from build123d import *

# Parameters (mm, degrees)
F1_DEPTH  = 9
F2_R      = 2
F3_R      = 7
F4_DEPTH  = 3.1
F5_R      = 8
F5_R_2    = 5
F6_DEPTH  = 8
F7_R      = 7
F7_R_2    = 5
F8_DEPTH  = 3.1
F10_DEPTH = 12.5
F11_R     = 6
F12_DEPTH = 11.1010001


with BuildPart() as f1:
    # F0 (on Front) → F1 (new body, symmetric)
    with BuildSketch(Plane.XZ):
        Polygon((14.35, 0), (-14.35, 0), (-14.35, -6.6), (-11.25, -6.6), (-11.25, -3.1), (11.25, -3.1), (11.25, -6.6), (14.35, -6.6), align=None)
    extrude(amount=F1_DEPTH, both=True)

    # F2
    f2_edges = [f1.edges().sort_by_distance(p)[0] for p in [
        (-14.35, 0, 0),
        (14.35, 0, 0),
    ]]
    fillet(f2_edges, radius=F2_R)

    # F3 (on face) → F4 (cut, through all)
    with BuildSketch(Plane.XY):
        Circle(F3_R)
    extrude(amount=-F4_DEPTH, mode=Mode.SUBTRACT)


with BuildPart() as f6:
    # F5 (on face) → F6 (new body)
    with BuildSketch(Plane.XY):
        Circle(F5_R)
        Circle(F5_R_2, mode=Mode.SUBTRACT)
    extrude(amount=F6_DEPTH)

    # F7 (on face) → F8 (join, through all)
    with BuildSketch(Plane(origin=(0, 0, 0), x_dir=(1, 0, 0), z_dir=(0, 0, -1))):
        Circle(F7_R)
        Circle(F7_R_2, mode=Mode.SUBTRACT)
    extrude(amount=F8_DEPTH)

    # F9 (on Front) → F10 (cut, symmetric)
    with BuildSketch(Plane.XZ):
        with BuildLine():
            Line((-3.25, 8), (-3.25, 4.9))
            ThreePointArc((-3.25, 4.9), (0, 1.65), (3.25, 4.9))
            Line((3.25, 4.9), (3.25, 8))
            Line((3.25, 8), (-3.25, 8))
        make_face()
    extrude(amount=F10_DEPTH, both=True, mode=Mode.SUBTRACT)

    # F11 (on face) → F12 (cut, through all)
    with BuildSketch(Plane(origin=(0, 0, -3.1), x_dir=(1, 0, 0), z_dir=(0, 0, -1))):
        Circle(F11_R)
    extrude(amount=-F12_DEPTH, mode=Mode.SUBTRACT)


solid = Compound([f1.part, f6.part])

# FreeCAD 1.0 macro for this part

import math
import FreeCAD as App
import Part
import Sketcher
from FreeCAD import Vector
Q = App.Units.Quantity


def edges_at(feature, points):
    """Names of the edges that pass closest to the given points."""
    edges = feature.Shape.Edges
    near = lambda p: min(range(len(edges)), key=lambda i: edges[i].distToShape(Part.Vertex(*p))[0])
    return sorted({f"Edge{near(p) + 1}" for p in points})

doc = App.newDocument("Part")
body = doc.addObject("PartDesign::Body", "Body")

# Sketch on XZ plane
sketch1 = body.newObject("Sketcher::SketchObject", "Sketch")
sketch1.AttachmentSupport = (doc.getObject("XZ_Plane"), [""])
sketch1.MapMode = "FlatFace"
sketch1.addGeometry(Part.LineSegment(Vector(14.35, 0, 0), Vector(-14.35, 0, 0)), False)
sketch1.addGeometry(Part.LineSegment(Vector(-14.35, 0, 0), Vector(-14.35, -6.6, 0)), False)
sketch1.addGeometry(Part.LineSegment(Vector(-14.35, -6.6, 0), Vector(-11.25, -6.6, 0)), False)
sketch1.addGeometry(Part.LineSegment(Vector(-11.25, -6.6, 0), Vector(-11.25, -3.1, 0)), False)
sketch1.addGeometry(Part.LineSegment(Vector(-11.25, -3.1, 0), Vector(11.25, -3.1, 0)), False)
sketch1.addGeometry(Part.LineSegment(Vector(11.25, -3.1, 0), Vector(11.25, -6.6, 0)), False)
sketch1.addGeometry(Part.LineSegment(Vector(11.25, -6.6, 0), Vector(14.35, -6.6, 0)), False)
sketch1.addGeometry(Part.LineSegment(Vector(14.35, -6.6, 0), Vector(14.35, 0, 0)), False)
sketch1.addConstraint(Sketcher.Constraint("Coincident", 0, 2, 1, 1))
sketch1.addConstraint(Sketcher.Constraint("Coincident", 1, 2, 2, 1))
sketch1.addConstraint(Sketcher.Constraint("Coincident", 2, 2, 3, 1))
sketch1.addConstraint(Sketcher.Constraint("Coincident", 3, 2, 4, 1))
sketch1.addConstraint(Sketcher.Constraint("Coincident", 4, 2, 5, 1))
sketch1.addConstraint(Sketcher.Constraint("Coincident", 5, 2, 6, 1))
sketch1.addConstraint(Sketcher.Constraint("Coincident", 6, 2, 7, 1))
sketch1.addConstraint(Sketcher.Constraint("Coincident", 7, 2, 0, 1))
sketch1.addConstraint(Sketcher.Constraint("Horizontal", 0))
sketch1.addConstraint(Sketcher.Constraint("Vertical", 1))
sketch1.addConstraint(Sketcher.Constraint("Horizontal", 2))
sketch1.addConstraint(Sketcher.Constraint("Vertical", 3))
sketch1.addConstraint(Sketcher.Constraint("Horizontal", 4))
sketch1.addConstraint(Sketcher.Constraint("Vertical", 5))
sketch1.addConstraint(Sketcher.Constraint("Horizontal", 6))
sketch1.addConstraint(Sketcher.Constraint("Vertical", 7))
sketch1.addConstraint(Sketcher.Constraint("Symmetric", 0, 2, 7, 2, -1, 1))
sketch1.addConstraint(Sketcher.Constraint("Symmetric", 2, 2, 5, 2, -2))
sketch1.addConstraint(Sketcher.Constraint("DistanceX", 0, 2, 0, 1, Q("28.7 mm")))
sketch1.addConstraint(Sketcher.Constraint("DistanceX", 2, 1, 2, 2, Q("3.1 mm")))
sketch1.addConstraint(Sketcher.Constraint("DistanceY", 1, 2, 1, 1, Q("6.6 mm")))
sketch1.addConstraint(Sketcher.Constraint("DistanceY", 3, 1, 3, 2, Q("3.5 mm")))
pad1 = body.newObject("PartDesign::Pad", "Pad")
pad1.Profile = sketch1
pad1.Length = 18
pad1.Midplane = True
doc.recompute()

fillet = body.newObject("PartDesign::Fillet", "Fillet")
fillet.Base = (pad1, edges_at(pad1, [(-14.35, 0, 0), (14.35, 0, 0)]))
fillet.Radius = 2

# Sketch on XY plane
sketch2 = body.newObject("Sketcher::SketchObject", "Sketch001")
sketch2.AttachmentSupport = (doc.getObject("XY_Plane"), [""])
sketch2.MapMode = "FlatFace"
sketch2.addGeometry(Part.Circle(Vector(0, 0, 0), Vector(0, 0, 1), 7), False)
sketch2.addConstraint(Sketcher.Constraint("Coincident", 0, 3, -1, 1))
sketch2.addConstraint(Sketcher.Constraint("Diameter", 0, Q("14 mm")))
pocket1 = body.newObject("PartDesign::Pocket", "Pocket")
pocket1.Profile = sketch2
pocket1.Type = "ThroughAll"
body2 = doc.addObject("PartDesign::Body", "Body001")

# Sketch on XY plane
sketch3 = body2.newObject("Sketcher::SketchObject", "Sketch002")
sketch3.AttachmentSupport = (doc.getObject("XY_Plane001"), [""])
sketch3.MapMode = "FlatFace"
sketch3.addGeometry(Part.Circle(Vector(0, 0, 0), Vector(0, 0, 1), 8), False)
sketch3.addGeometry(Part.Circle(Vector(0, 0, 0), Vector(0, 0, 1), 5), False)
sketch3.addConstraint(Sketcher.Constraint("Coincident", 0, 3, -1, 1))
sketch3.addConstraint(Sketcher.Constraint("Coincident", 1, 3, -1, 1))
sketch3.addConstraint(Sketcher.Constraint("Diameter", 0, Q("16 mm")))
sketch3.addConstraint(Sketcher.Constraint("Diameter", 1, Q("10 mm")))
pad2 = body2.newObject("PartDesign::Pad", "Pad001")
pad2.Profile = sketch3
pad2.Length = 8

# Sketch on XY plane
sketch4 = body2.newObject("Sketcher::SketchObject", "Sketch003")
sketch4.AttachmentSupport = (doc.getObject("XY_Plane001"), [""])
sketch4.MapMode = "FlatFace"
sketch4.addGeometry(Part.Circle(Vector(0, 0, 0), Vector(0, 0, 1), 7), False)
sketch4.addGeometry(Part.Circle(Vector(0, 0, 0), Vector(0, 0, 1), 5), False)
sketch4.addConstraint(Sketcher.Constraint("Coincident", 0, 3, -1, 1))
sketch4.addConstraint(Sketcher.Constraint("Coincident", 1, 3, -1, 1))
sketch4.addConstraint(Sketcher.Constraint("Diameter", 0, Q("14 mm")))
sketch4.addConstraint(Sketcher.Constraint("Diameter", 1, Q("10 mm")))
pad3 = body2.newObject("PartDesign::Pad", "Pad002")
pad3.Profile = sketch4
pad3.Length = 3.1
pad3.Reversed = True

# Sketch on XZ plane
sketch5 = body2.newObject("Sketcher::SketchObject", "Sketch004")
sketch5.AttachmentSupport = (doc.getObject("XZ_Plane001"), [""])
sketch5.MapMode = "FlatFace"
sketch5.addGeometry(Part.LineSegment(Vector(-3.25, 8, 0), Vector(-3.25, 4.9, 0)), False)
sketch5.addGeometry(Part.ArcOfCircle(Part.Circle(Vector(0, 4.9, 0), Vector(0, 0, 1), 3.25), math.radians(180), math.radians(360)), False)
sketch5.addGeometry(Part.LineSegment(Vector(3.25, 4.9, 0), Vector(3.25, 8, 0)), False)
sketch5.addGeometry(Part.LineSegment(Vector(3.25, 8, 0), Vector(-3.25, 8, 0)), False)
sketch5.addConstraint(Sketcher.Constraint("Tangent", 0, 2, 1, 1))
sketch5.addConstraint(Sketcher.Constraint("Tangent", 1, 2, 2, 1))
sketch5.addConstraint(Sketcher.Constraint("Coincident", 2, 2, 3, 1))
sketch5.addConstraint(Sketcher.Constraint("Coincident", 3, 2, 0, 1))
sketch5.addConstraint(Sketcher.Constraint("Vertical", 0))
sketch5.addConstraint(Sketcher.Constraint("Vertical", 2))
sketch5.addConstraint(Sketcher.Constraint("Horizontal", 3))
sketch5.addConstraint(Sketcher.Constraint("PointOnObject", 1, 3, -2))
sketch5.addConstraint(Sketcher.Constraint("Radius", 1, Q("3.25 mm")))
sketch5.addConstraint(Sketcher.Constraint("DistanceY", 0, 2, 0, 1, Q("3.1 mm")))
sketch5.addConstraint(Sketcher.Constraint("DistanceY", -1, 1, 2, 2, Q("8 mm")))
pocket2 = body2.newObject("PartDesign::Pocket", "Pocket001")
pocket2.Profile = sketch5
pocket2.Length = 25
pocket2.Midplane = True

# Sketch on XY plane
sketch6 = body2.newObject("Sketcher::SketchObject", "Sketch005")
sketch6.AttachmentSupport = (doc.getObject("XY_Plane001"), [""])
sketch6.MapMode = "FlatFace"
sketch6.AttachmentOffset = App.Placement(Vector(0, 0, -3.1), App.Rotation())
sketch6.addGeometry(Part.Circle(Vector(0, 0, 0), Vector(0, 0, 1), 6), False)
sketch6.addConstraint(Sketcher.Constraint("Coincident", 0, 3, -1, 1))
sketch6.addConstraint(Sketcher.Constraint("Diameter", 0, Q("12 mm")))
pocket3 = body2.newObject("PartDesign::Pocket", "Pocket002")
pocket3.Profile = sketch6
pocket3.Type = "ThroughAll"
pocket3.Reversed = True

doc.recompute()
